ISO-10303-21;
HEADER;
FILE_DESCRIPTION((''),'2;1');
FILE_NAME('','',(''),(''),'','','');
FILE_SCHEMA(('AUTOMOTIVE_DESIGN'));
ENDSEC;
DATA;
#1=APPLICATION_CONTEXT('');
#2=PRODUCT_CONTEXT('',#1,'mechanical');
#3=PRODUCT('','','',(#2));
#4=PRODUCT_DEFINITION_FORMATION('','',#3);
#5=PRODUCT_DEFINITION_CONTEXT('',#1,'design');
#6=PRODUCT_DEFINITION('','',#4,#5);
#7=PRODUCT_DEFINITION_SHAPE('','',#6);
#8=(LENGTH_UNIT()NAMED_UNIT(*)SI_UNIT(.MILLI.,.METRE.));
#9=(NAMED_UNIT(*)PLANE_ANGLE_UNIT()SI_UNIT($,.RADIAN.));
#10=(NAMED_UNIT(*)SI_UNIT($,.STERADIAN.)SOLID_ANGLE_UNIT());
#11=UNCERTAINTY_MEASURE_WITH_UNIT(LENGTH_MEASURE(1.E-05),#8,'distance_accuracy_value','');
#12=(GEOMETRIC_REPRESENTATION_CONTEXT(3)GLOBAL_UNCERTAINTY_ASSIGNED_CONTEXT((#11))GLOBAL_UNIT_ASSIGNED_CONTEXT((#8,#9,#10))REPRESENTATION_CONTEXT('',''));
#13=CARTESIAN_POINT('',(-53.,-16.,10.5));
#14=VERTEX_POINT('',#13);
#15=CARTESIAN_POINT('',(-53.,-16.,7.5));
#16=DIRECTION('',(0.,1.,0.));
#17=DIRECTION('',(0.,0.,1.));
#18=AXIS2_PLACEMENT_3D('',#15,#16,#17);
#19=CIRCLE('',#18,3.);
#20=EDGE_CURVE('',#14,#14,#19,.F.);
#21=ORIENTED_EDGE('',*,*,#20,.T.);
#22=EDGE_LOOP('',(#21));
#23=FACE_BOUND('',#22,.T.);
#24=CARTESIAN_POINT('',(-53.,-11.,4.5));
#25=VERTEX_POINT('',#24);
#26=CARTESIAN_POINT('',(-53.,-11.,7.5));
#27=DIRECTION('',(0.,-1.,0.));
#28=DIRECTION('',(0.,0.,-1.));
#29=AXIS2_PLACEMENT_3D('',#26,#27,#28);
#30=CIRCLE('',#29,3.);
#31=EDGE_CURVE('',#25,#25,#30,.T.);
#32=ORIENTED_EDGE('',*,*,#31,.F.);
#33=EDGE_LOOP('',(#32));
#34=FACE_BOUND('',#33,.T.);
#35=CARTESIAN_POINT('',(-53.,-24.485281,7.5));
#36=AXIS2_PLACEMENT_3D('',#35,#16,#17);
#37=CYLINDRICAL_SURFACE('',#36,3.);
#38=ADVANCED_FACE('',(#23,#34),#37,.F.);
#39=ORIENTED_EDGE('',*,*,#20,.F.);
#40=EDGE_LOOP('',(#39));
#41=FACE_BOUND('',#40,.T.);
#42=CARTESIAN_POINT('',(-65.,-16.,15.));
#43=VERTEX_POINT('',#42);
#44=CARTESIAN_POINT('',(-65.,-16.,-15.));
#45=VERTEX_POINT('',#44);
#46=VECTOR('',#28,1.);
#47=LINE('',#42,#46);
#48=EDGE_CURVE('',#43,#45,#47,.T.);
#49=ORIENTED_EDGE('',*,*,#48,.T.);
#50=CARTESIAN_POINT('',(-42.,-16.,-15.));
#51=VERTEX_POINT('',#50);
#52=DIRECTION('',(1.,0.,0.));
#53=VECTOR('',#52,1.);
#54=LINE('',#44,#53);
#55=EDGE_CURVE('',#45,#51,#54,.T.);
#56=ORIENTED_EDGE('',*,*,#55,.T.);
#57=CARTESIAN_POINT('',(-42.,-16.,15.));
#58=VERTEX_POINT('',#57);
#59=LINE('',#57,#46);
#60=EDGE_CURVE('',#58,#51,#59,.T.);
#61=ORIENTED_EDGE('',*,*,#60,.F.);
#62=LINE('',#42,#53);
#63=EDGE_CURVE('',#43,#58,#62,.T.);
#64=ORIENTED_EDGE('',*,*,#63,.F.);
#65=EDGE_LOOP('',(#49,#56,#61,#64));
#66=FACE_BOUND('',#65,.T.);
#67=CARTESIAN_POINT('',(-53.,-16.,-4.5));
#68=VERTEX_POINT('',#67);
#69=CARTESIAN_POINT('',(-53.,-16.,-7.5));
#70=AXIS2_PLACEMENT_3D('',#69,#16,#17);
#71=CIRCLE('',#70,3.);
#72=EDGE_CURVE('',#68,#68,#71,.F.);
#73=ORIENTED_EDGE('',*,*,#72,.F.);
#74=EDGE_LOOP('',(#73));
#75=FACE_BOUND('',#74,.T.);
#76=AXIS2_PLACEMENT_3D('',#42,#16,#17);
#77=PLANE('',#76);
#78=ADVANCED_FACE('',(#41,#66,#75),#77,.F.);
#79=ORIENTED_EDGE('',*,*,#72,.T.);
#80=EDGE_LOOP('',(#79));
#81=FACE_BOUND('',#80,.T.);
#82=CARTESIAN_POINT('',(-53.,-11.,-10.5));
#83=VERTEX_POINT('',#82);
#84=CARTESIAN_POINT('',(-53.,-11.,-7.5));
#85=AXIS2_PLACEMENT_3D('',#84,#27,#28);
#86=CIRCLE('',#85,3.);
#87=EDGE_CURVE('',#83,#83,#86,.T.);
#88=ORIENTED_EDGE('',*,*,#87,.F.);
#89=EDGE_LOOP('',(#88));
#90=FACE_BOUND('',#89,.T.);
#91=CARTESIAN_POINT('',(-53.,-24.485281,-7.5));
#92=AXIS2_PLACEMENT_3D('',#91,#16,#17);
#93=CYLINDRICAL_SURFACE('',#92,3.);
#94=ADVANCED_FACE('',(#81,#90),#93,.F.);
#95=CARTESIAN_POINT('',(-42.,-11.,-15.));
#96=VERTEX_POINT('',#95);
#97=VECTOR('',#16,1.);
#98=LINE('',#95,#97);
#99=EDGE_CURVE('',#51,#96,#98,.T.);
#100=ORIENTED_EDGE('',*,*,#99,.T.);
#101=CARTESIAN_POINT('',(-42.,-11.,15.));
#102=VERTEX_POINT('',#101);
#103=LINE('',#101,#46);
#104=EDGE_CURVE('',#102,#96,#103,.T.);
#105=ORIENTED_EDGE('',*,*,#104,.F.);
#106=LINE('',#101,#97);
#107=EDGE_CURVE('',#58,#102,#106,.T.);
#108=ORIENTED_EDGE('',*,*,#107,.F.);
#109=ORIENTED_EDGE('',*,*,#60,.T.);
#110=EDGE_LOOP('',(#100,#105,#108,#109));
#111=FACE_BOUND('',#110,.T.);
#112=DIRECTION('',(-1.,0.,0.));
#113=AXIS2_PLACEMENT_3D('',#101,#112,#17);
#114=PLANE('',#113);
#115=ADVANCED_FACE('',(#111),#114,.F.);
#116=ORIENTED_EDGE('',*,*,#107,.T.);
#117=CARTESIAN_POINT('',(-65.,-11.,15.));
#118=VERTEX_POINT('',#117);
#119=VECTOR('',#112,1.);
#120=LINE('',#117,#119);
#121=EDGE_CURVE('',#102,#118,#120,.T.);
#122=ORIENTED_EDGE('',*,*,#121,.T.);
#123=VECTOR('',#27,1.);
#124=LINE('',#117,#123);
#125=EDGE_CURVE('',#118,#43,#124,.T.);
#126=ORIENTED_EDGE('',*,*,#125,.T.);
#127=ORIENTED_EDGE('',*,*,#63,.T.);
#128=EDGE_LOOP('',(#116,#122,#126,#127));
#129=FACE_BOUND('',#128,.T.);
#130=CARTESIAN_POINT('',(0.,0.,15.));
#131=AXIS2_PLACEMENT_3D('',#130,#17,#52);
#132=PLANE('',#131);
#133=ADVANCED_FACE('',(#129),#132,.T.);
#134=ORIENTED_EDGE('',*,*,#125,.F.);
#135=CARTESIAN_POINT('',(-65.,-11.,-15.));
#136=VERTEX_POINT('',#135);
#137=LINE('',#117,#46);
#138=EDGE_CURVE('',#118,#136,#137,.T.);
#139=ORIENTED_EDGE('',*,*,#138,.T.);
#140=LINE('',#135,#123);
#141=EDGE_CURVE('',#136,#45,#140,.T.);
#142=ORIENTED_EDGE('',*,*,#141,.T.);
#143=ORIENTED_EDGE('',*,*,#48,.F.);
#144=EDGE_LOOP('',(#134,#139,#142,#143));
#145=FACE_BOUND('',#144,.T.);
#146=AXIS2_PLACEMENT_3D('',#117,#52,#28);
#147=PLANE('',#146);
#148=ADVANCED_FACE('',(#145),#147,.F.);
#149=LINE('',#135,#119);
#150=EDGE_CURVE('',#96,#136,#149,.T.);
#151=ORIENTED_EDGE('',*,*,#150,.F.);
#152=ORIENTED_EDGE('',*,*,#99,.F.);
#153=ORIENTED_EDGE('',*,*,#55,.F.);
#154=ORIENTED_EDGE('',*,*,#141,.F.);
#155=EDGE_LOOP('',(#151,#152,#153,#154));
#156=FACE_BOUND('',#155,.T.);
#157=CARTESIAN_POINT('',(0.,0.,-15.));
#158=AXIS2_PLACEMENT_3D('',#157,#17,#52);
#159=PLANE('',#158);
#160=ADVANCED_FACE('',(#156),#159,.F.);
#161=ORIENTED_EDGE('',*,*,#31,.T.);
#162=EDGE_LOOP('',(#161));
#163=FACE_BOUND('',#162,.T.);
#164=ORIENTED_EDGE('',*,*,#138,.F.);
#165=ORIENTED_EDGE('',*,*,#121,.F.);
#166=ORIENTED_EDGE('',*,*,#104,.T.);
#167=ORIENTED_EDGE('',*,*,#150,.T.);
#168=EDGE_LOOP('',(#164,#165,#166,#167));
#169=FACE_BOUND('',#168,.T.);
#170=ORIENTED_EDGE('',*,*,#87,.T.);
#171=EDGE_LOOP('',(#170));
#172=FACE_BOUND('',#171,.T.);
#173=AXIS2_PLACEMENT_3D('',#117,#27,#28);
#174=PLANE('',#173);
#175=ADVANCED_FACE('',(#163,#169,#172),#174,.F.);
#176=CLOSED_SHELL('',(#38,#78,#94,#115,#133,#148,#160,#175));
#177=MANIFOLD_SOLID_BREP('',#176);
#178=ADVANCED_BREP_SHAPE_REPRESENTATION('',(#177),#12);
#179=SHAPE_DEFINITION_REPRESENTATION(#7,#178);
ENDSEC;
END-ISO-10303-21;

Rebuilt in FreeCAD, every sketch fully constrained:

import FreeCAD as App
import Part
import Sketcher

V = App.Vector

doc = App.newDocument("Part")
body = doc.addObject("PartDesign::Body", "Body")

# Sketch on XY plane
sketch1 = doc.addObject("Sketcher::SketchObject", "Sketch")
body.addObject(sketch1)
sketch1.AttachmentSupport = (doc.XY_Plane, [""])
sketch1.MapMode = "FlatFace"
sketch1.addGeometry(Part.LineSegment(V(-65, -11, 0), V(-65, -16, 0)), False)
sketch1.addGeometry(Part.LineSegment(V(-65, -16, 0), V(-42, -16, 0)), False)
sketch1.addGeometry(Part.LineSegment(V(-42, -16, 0), V(-42, -11, 0)), False)
sketch1.addGeometry(Part.LineSegment(V(-42, -11, 0), V(-65, -11, 0)), False)
sketch1.addConstraint(Sketcher.Constraint("Coincident", 0, 2, 1, 1))
sketch1.addConstraint(Sketcher.Constraint("Coincident", 1, 2, 2, 1))
sketch1.addConstraint(Sketcher.Constraint("Coincident", 2, 2, 3, 1))
sketch1.addConstraint(Sketcher.Constraint("Coincident", 3, 2, 0, 1))
sketch1.addConstraint(Sketcher.Constraint("Vertical", 0))
sketch1.addConstraint(Sketcher.Constraint("Horizontal", 1))
sketch1.addConstraint(Sketcher.Constraint("Vertical", 2))
sketch1.addConstraint(Sketcher.Constraint("Horizontal", 3))
sketch1.addConstraint(Sketcher.Constraint("DistanceX", 1, 1, 1, 2, 23.0))
sketch1.addConstraint(Sketcher.Constraint("DistanceY", 0, 2, 0, 1, 5.0))
sketch1.addConstraint(Sketcher.Constraint("DistanceX", 0, 2, -1, 1, 65.0))
sketch1.addConstraint(Sketcher.Constraint("DistanceY", 0, 2, -1, 1, 16.0))
pad1 = doc.addObject("PartDesign::Pad", "Pad")
body.addObject(pad1)
pad1.Profile = sketch1
pad1.Type = "TwoLengths"
pad1.Length = 15
pad1.Length2 = 15

# Sketch on XZ plane
sketch2 = doc.addObject("Sketcher::SketchObject", "Sketch001")
body.addObject(sketch2)
sketch2.AttachmentSupport = (doc.XZ_Plane, [""])
sketch2.MapMode = "FlatFace"
sketch2.addGeometry(Part.Circle(V(-53, -7.5, 0), V(0, 0, 1), 3), False)
sketch2.addGeometry(Part.Circle(V(-53, 7.5, 0), V(0, 0, 1), 3), False)
sketch2.addConstraint(Sketcher.Constraint("Equal", 0, 1))
sketch2.addConstraint(Sketcher.Constraint("Symmetric", 0, 3, 1, 3, -1))
sketch2.addConstraint(Sketcher.Constraint("Diameter", 0, 6.0))
sketch2.addConstraint(Sketcher.Constraint("DistanceX", 0, 3, -1, 1, 53.0))
sketch2.addConstraint(Sketcher.Constraint("DistanceY", 0, 3, 1, 3, 15.0))
pocket1 = doc.addObject("PartDesign::Pocket", "Pocket")
body.addObject(pocket1)
pocket1.Profile = sketch2
pocket1.Length = 16
pocket1.Reversed = True

doc.recompute()
